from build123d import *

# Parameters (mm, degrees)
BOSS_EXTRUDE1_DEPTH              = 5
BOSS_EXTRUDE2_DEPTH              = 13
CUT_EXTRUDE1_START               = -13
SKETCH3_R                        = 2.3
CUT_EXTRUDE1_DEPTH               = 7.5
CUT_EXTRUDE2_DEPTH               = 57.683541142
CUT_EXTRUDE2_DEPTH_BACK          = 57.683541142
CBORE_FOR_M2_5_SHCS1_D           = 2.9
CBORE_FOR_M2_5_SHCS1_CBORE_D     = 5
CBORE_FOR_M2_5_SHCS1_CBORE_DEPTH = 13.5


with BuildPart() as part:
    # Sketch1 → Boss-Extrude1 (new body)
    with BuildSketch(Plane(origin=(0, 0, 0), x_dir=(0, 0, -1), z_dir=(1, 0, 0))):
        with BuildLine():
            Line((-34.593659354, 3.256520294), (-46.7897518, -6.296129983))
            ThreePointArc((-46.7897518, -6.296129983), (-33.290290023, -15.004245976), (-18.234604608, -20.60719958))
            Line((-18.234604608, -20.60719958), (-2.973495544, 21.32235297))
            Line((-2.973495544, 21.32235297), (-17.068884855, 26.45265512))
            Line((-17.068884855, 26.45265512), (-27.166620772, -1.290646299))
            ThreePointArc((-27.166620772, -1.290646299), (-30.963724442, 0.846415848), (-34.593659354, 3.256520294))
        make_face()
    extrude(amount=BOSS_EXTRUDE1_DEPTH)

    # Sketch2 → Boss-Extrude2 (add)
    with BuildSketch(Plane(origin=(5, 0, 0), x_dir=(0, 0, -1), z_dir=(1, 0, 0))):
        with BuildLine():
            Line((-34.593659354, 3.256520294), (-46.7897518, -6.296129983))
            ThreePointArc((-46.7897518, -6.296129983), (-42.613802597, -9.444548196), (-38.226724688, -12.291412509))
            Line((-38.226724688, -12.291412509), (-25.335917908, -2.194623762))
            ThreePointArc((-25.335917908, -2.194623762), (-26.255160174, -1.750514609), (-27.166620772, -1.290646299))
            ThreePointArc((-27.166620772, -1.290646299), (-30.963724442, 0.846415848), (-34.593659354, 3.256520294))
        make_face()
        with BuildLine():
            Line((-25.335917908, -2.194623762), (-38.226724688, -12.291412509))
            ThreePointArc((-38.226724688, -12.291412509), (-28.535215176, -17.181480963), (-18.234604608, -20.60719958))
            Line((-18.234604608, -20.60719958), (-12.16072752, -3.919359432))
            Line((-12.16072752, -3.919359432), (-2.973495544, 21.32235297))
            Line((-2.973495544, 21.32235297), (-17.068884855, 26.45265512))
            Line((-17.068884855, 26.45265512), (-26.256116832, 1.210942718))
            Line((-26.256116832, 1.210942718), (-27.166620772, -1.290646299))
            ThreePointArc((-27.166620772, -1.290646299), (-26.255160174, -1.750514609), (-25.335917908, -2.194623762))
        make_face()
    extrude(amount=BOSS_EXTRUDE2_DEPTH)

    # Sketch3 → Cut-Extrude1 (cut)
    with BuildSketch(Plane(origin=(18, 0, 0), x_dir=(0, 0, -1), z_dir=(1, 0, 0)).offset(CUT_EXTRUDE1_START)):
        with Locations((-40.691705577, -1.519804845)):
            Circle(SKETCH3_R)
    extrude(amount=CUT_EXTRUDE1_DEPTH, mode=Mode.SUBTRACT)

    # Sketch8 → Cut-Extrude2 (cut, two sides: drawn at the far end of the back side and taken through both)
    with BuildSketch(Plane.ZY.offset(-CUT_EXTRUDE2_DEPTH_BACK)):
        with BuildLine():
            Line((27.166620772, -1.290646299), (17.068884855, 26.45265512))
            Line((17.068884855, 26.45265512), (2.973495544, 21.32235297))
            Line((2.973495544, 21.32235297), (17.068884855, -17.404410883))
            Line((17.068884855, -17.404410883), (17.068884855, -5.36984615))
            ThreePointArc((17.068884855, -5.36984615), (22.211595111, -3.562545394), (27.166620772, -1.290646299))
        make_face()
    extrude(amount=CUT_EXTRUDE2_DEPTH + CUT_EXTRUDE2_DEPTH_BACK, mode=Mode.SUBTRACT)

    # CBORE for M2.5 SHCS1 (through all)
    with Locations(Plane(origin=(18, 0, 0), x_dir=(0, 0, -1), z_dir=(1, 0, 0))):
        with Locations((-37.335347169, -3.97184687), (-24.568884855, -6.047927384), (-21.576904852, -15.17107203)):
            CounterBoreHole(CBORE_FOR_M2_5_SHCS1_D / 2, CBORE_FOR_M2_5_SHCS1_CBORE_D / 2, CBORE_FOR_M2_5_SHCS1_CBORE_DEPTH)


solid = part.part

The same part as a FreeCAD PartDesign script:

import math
import FreeCAD as App
import Part
import Sketcher

V = App.Vector
Q = App.Units.Quantity

doc = App.newDocument("Part")
body = doc.addObject("PartDesign::Body", "Body")

sketch1 = body.newObject("Sketcher::SketchObject", "Sketch")
sketch1.AttachmentSupport = (doc.getObject("YZ_Plane"), [""])
sketch1.MapMode = "FlatFace"
sketch1.addGeometry([
    Part.LineSegment(V(3.25652, 34.593659, 0), V(-6.29613, 46.789752, 0)),
    Part.ArcOfCircle(Part.Circle(V(51.420498, 0, 0), V(0, 0, 1), 74.3), math.radians(140.968988), math.radians(165.793425)),
    Part.LineSegment(V(-20.6072, 18.234605, 0), V(21.322353, 2.973496, 0)),
    Part.LineSegment(V(21.322353, 2.973496, 0), V(26.452655, 17.068885, 0)),
    Part.LineSegment(V(26.452655, 17.068885, 0), V(-1.290646, 27.166621, 0)),
    Part.ArcOfCircle(Part.Circle(V(51.420498, 0, 0), V(0, 0, 1), 59.3), math.radians(144.312295), math.radians(152.734025)),
], False)
sketch1.addConstraint([
    Sketcher.Constraint("Coincident", 0, 2, 1, 1),
    Sketcher.Constraint("Coincident", 1, 2, 2, 1),
    Sketcher.Constraint("Coincident", 2, 2, 3, 1),
    Sketcher.Constraint("Coincident", 3, 2, 4, 1),
    Sketcher.Constraint("Coincident", 4, 2, 5, 2),
    Sketcher.Constraint("Coincident", 5, 1, 0, 1),
    Sketcher.Constraint("Coincident", 5, 3, 1, 3),
    Sketcher.Constraint("PointOnObject", 1, 3, -1),
    Sketcher.Constraint("Perpendicular", 2, 3),
    Sketcher.Constraint("Perpendicular", 3, 4),
    Sketcher.Constraint("Radius", 1, Q("74.3 mm")),
    Sketcher.Constraint("Radius", 5, Q("59.3 mm")),
    Sketcher.Constraint("Angle", 2, Q("-20 deg")),
    Sketcher.Constraint("Distance", 3, Q("15 mm")),
    Sketcher.Constraint("Angle", 0, Q("128.07 deg")),
    Sketcher.Constraint("DistanceX", 4, 2, 2, 2, Q("22.612999 mm")),
    Sketcher.Constraint("DistanceX", 1, 2, -1, 1, Q("20.6072 mm")),
    Sketcher.Constraint("DistanceX", 0, 2, -1, 1, Q("6.29613 mm")),
    Sketcher.Constraint("DistanceY", -1, 1, 0, 2, Q("46.789752 mm")),
])
pad1 = body.newObject("PartDesign::Pad", "Pad")
pad1.Profile = sketch1
pad1.Length = 5

sketch2 = body.newObject("Sketcher::SketchObject", "Sketch001")
sketch2.AttachmentSupport = (doc.getObject("YZ_Plane"), [""])
sketch2.MapMode = "FlatFace"
sketch2.AttachmentOffset = App.Placement(V(0, 0, 5), App.Rotation())
sketch2.addGeometry([
    Part.LineSegment(V(3.25652, 34.593659, 0), V(-6.29613, 46.789752, 0)),
    Part.ArcOfCircle(Part.Circle(V(51.420498, 0, 0), V(0, 0, 1), 74.3), math.radians(140.968988), math.radians(149.036522)),
    Part.ArcOfCircle(Part.Circle(V(51.420498, 0, 0), V(0, 0, 1), 74.3), math.radians(149.036522), math.radians(165.793425)),
    Part.LineSegment(V(-20.6072, 18.234605, 0), V(-3.919359, 12.160728, 0)),
    Part.LineSegment(V(-3.919359, 12.160728, 0), V(21.322353, 2.973496, 0)),
    Part.LineSegment(V(21.322353, 2.973496, 0), V(26.452655, 17.068885, 0)),
    Part.LineSegment(V(26.452655, 17.068885, 0), V(1.210943, 26.256117, 0)),
    Part.LineSegment(V(1.210943, 26.256117, 0), V(-1.290646, 27.166621, 0)),
    Part.ArcOfCircle(Part.Circle(V(51.420498, 0, 0), V(0, 0, 1), 59.3), math.radians(144.312295), math.radians(152.734025)),
], False)
sketch2.addConstraint([
    Sketcher.Constraint("Coincident", 0, 2, 1, 1),
    Sketcher.Constraint("Tangent", 1, 2, 2, 1),
    Sketcher.Constraint("Coincident", 2, 2, 3, 1),
    Sketcher.Constraint("Coincident", 3, 2, 4, 1),
    Sketcher.Constraint("Coincident", 4, 2, 5, 1),
    Sketcher.Constraint("Coincident", 5, 2, 6, 1),
    Sketcher.Constraint("Coincident", 6, 2, 7, 1),
    Sketcher.Constraint("Coincident", 7, 2, 8, 2),
    Sketcher.Constraint("Coincident", 8, 1, 0, 1),
    Sketcher.Constraint("Coincident", 8, 3, 1, 3),
    Sketcher.Constraint("Equal", 1, 2),
    Sketcher.Constraint("PointOnObject", 1, 3, -1),
    Sketcher.Constraint("Parallel", 3, 4),
    Sketcher.Constraint("Perpendicular", 4, 5),
    Sketcher.Constraint("Perpendicular", 5, 6),
    Sketcher.Constraint("Parallel", 6, 7),
    Sketcher.Constraint("Equal", 4, 6),
    Sketcher.Constraint("Radius", 1, Q("74.3 mm")),
    Sketcher.Constraint("Radius", 8, Q("59.3 mm")),
    Sketcher.Constraint("Angle", 3, Q("-20 deg")),
    Sketcher.Constraint("Distance", 5, Q("15 mm")),
    Sketcher.Constraint("Angle", 0, Q("128.07 deg")),
    Sketcher.Constraint("DistanceX", 2, 2, -1, 1, Q("20.6072 mm")),
    Sketcher.Constraint("Distance", 3, Q("17.758829 mm")),
    Sketcher.Constraint("Distance", 4, Q("26.861669 mm")),
    Sketcher.Constraint("DistanceX", 0, 2, -1, 1, Q("6.29613 mm")),
    Sketcher.Constraint("DistanceY", -1, 1, 0, 2, Q("46.789752 mm")),
    Sketcher.Constraint("DistanceX", 1, 2, 8, 3, Q("63.71191 mm")),
])
pad2 = body.newObject("PartDesign::Pad", "Pad001")
pad2.Profile = sketch2
pad2.Length = 13

sketch3 = body.newObject("Sketcher::SketchObject", "Sketch002")
sketch3.AttachmentSupport = (doc.getObject("YZ_Plane"), [""])
sketch3.MapMode = "FlatFace"
sketch3.AttachmentOffset = App.Placement(V(0, 0, 5), App.Rotation())
sketch3.addGeometry(Part.Circle(V(-1.519805, 40.691706, 0), V(0, 0, 1), 2.3), False)
sketch3.addConstraint([
    Sketcher.Constraint("Diameter", 0, Q("4.6 mm")),
    Sketcher.Constraint("DistanceX", 0, 3, -1, 1, Q("1.519805 mm")),
    Sketcher.Constraint("DistanceY", -1, 1, 0, 3, Q("40.691706 mm")),
])
pocket1 = body.newObject("PartDesign::Pocket", "Pocket")
pocket1.Profile = sketch3
pocket1.Length = 7.5
pocket1.Reversed = True

sketch4 = body.newObject("Sketcher::SketchObject", "Sketch003")
sketch4.AttachmentSupport = (doc.getObject("YZ_Plane"), [""])
sketch4.MapMode = "FlatFace"
sketch4.addGeometry([
    Part.LineSegment(V(-1.290646, 27.166621, 0), V(26.452655, 17.068885, 0)),
    Part.LineSegment(V(26.452655, 17.068885, 0), V(21.322353, 2.973496, 0)),
    Part.LineSegment(V(21.322353, 2.973496, 0), V(-17.404411, 17.068885, 0)),
    Part.LineSegment(V(-17.404411, 17.068885, 0), V(-5.369846, 17.068885, 0)),
    Part.ArcOfCircle(Part.Circle(V(51.420498, 0, 0), V(0, 0, 1), 59.3), math.radians(152.734025), math.radians(163.271343)),
], False)
sketch4.addConstraint([
    Sketcher.Constraint("Coincident", 0, 2, 1, 1),
    Sketcher.Constraint("Coincident", 1, 2, 2, 1),
    Sketcher.Constraint("Coincident", 2, 2, 3, 1),
    Sketcher.Constraint("Coincident", 3, 2, 4, 2),
    Sketcher.Constraint("Coincident", 4, 1, 0, 1),
    Sketcher.Constraint("Horizontal", 3),
    Sketcher.Constraint("PointOnObject", 4, 3, -1),
    Sketcher.Constraint("Perpendicular", 0, 1),
    Sketcher.Constraint("Perpendicular", 1, 2),
    Sketcher.Constraint("Horizontal", 0, 2, 2, 2),
    Sketcher.Constraint("Radius", 4, Q("59.3 mm")),
    Sketcher.Constraint("Angle", 0, Q("-20 deg")),
    Sketcher.Constraint("Distance", 1, Q("15 mm")),
    Sketcher.Constraint("DistanceX", 4, 1, 1, 2, Q("22.612999 mm")),
    Sketcher.Constraint("DistanceX", 3, 2, 1, 2, Q("26.692199 mm")),
    Sketcher.Constraint("DistanceX", 2, 2, -1, 1, Q("17.404411 mm")),
])
pocket2 = body.newObject("PartDesign::Pocket", "Pocket001")
pocket2.Profile = sketch4
pocket2.Type = "ThroughAll"
pocket2.Midplane = True

sketch5 = body.newObject("Sketcher::SketchObject", "Sketch004")
sketch5.AttachmentSupport = (doc.getObject("YZ_Plane"), [""])
sketch5.MapMode = "FlatFace"
sketch5.AttachmentOffset = App.Placement(V(0, 0, 18), App.Rotation())
sketch5.addGeometry([
    Part.Circle(V(-3.971847, 37.335347, 0), V(0, 0, 1), 1.45),
    Part.Circle(V(-6.047927, 24.568885, 0), V(0, 0, 1), 1.45),
    Part.Circle(V(-15.171072, 21.576905, 0), V(0, 0, 1), 1.45),
], False)
sketch5.addConstraint([
    Sketcher.Constraint("Equal", 0, 1),
    Sketcher.Constraint("Equal", 1, 2),
    Sketcher.Constraint("Diameter", 0, Q("2.9 mm")),
    Sketcher.Constraint("DistanceX", 1, 3, 0, 3, Q("2.076081 mm")),
    Sketcher.Constraint("DistanceY", 2, 3, 1, 3, Q("2.99198 mm")),
    Sketcher.Constraint("DistanceX", 0, 3, -1, 1, Q("3.971847 mm")),
    Sketcher.Constraint("DistanceY", -1, 1, 0, 3, Q("37.335347 mm")),
    Sketcher.Constraint("DistanceY", -1, 1, 1, 3, Q("24.568885 mm")),
    Sketcher.Constraint("DistanceX", 2, 3, -1, 1, Q("15.171072 mm")),
])
doc.recompute()
hole = body.newObject("PartDesign::Hole", "Hole")
hole.Profile = sketch5
hole.ThreadType = "None"
hole.Diameter = 2.9
hole.DepthType = "ThroughAll"
hole.HoleCutType = "Counterbore"
hole.HoleCutDiameter = 5
hole.HoleCutDepth = 13.5

doc.recompute()
